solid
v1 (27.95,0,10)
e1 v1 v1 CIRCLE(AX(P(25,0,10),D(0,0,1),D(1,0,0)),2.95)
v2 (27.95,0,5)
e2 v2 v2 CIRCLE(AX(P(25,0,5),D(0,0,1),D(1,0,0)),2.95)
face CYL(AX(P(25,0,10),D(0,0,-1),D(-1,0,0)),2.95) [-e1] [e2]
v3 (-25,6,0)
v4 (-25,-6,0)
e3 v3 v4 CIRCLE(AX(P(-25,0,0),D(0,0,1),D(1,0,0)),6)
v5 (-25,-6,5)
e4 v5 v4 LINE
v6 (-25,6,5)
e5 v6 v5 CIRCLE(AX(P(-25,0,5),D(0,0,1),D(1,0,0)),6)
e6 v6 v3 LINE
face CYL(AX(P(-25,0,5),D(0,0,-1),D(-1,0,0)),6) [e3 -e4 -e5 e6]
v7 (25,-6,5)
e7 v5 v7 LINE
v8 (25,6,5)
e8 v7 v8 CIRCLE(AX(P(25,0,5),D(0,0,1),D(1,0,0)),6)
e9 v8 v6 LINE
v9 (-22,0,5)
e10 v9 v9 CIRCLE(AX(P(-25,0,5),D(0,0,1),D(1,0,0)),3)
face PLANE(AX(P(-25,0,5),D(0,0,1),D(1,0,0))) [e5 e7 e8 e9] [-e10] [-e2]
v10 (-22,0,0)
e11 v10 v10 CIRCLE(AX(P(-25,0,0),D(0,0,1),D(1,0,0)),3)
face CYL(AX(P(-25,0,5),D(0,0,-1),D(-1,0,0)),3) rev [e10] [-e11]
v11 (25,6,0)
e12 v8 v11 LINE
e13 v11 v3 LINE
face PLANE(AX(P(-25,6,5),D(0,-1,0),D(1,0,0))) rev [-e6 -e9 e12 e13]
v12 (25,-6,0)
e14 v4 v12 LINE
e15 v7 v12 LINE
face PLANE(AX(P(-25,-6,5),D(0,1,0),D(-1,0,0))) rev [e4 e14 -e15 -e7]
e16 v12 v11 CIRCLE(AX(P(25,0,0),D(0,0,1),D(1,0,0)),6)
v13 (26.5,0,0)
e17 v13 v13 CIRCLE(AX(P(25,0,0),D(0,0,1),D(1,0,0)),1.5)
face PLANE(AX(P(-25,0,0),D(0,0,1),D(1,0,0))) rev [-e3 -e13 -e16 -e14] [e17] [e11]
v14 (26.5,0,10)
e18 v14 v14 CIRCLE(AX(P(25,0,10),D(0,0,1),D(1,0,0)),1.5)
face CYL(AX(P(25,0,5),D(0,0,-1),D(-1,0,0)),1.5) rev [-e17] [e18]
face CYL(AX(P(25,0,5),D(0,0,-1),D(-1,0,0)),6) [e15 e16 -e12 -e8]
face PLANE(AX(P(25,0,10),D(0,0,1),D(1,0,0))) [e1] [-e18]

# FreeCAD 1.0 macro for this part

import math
import FreeCAD as App
import Part
import Sketcher

doc = App.newDocument("Part")
body = doc.addObject("PartDesign::Body", "Body")

sketch1 = body.newObject("Sketcher::SketchObject", "Sketch")
sketch1.AttachmentSupport = (doc.getObject("XY_Plane"), [""])
sketch1.MapMode = "FlatFace"
sketch1.addGeometry([
    Part.LineSegment(App.Vector(25, 6, 0), App.Vector(-25, 6, 0)),
    Part.ArcOfCircle(Part.Circle(App.Vector(-25, 0, 0), App.Vector(0, 0, 1), 6), math.radians(90), math.radians(270)),
    Part.LineSegment(App.Vector(-25, -6, 0), App.Vector(25, -6, 0)),
    Part.ArcOfCircle(Part.Circle(App.Vector(25, 0, 0), App.Vector(0, 0, 1), 6), math.radians(-90), math.radians(90)),
    Part.Circle(App.Vector(25, 0, 0), App.Vector(0, 0, 1), 1.5),
    Part.Circle(App.Vector(-25, 0, 0), App.Vector(0, 0, 1), 3),
], False)
sketch1.addConstraint([
    Sketcher.Constraint("Tangent", 0, 2, 1, 1),
    Sketcher.Constraint("Tangent", 1, 2, 2, 1),
    Sketcher.Constraint("Tangent", 2, 2, 3, 1),
    Sketcher.Constraint("Tangent", 3, 2, 0, 1),
    Sketcher.Constraint("Horizontal", 0),
    Sketcher.Constraint("Horizontal", 2),
    Sketcher.Constraint("Coincident", 4, 3, 3, 3),
    Sketcher.Constraint("Coincident", 5, 3, 1, 3),
    Sketcher.Constraint("Symmetric", 1, 3, 3, 3, -1, 1),
    Sketcher.Constraint("Diameter", 4, 3.0),
    Sketcher.Constraint("Diameter", 5, 6.0),
    Sketcher.Constraint("Radius", 1, 6.0),
    Sketcher.Constraint("DistanceX", 0, 2, 0, 1, 50.0),
])
pad1 = body.newObject("PartDesign::Pad", "Pad")
pad1.Profile = sketch1
pad1.Length = 5

sketch2 = body.newObject("Sketcher::SketchObject", "Sketch001")
sketch2.AttachmentSupport = (doc.getObject("XY_Plane"), [""])
sketch2.MapMode = "FlatFace"
sketch2.AttachmentOffset = App.Placement(App.Vector(0, 0, 5), App.Rotation())
sketch2.addGeometry([
    Part.Circle(App.Vector(25, 0, 0), App.Vector(0, 0, 1), 3),
    Part.Circle(App.Vector(25, 0, 0), App.Vector(0, 0, 1), 1.5),
], False)
sketch2.addConstraint([
    Sketcher.Constraint("Coincident", 1, 3, 0, 3),
    Sketcher.Constraint("PointOnObject", 0, 3, -1),
    Sketcher.Constraint("Diameter", 1, 3.0),
    Sketcher.Constraint("Diameter", 0, 5.9),
    Sketcher.Constraint("DistanceX", -1, 1, 0, 3, 25.0),
])
pad2 = body.newObject("PartDesign::Pad", "Pad001")
pad2.Profile = sketch2
pad2.Length = 5

doc.recompute()
